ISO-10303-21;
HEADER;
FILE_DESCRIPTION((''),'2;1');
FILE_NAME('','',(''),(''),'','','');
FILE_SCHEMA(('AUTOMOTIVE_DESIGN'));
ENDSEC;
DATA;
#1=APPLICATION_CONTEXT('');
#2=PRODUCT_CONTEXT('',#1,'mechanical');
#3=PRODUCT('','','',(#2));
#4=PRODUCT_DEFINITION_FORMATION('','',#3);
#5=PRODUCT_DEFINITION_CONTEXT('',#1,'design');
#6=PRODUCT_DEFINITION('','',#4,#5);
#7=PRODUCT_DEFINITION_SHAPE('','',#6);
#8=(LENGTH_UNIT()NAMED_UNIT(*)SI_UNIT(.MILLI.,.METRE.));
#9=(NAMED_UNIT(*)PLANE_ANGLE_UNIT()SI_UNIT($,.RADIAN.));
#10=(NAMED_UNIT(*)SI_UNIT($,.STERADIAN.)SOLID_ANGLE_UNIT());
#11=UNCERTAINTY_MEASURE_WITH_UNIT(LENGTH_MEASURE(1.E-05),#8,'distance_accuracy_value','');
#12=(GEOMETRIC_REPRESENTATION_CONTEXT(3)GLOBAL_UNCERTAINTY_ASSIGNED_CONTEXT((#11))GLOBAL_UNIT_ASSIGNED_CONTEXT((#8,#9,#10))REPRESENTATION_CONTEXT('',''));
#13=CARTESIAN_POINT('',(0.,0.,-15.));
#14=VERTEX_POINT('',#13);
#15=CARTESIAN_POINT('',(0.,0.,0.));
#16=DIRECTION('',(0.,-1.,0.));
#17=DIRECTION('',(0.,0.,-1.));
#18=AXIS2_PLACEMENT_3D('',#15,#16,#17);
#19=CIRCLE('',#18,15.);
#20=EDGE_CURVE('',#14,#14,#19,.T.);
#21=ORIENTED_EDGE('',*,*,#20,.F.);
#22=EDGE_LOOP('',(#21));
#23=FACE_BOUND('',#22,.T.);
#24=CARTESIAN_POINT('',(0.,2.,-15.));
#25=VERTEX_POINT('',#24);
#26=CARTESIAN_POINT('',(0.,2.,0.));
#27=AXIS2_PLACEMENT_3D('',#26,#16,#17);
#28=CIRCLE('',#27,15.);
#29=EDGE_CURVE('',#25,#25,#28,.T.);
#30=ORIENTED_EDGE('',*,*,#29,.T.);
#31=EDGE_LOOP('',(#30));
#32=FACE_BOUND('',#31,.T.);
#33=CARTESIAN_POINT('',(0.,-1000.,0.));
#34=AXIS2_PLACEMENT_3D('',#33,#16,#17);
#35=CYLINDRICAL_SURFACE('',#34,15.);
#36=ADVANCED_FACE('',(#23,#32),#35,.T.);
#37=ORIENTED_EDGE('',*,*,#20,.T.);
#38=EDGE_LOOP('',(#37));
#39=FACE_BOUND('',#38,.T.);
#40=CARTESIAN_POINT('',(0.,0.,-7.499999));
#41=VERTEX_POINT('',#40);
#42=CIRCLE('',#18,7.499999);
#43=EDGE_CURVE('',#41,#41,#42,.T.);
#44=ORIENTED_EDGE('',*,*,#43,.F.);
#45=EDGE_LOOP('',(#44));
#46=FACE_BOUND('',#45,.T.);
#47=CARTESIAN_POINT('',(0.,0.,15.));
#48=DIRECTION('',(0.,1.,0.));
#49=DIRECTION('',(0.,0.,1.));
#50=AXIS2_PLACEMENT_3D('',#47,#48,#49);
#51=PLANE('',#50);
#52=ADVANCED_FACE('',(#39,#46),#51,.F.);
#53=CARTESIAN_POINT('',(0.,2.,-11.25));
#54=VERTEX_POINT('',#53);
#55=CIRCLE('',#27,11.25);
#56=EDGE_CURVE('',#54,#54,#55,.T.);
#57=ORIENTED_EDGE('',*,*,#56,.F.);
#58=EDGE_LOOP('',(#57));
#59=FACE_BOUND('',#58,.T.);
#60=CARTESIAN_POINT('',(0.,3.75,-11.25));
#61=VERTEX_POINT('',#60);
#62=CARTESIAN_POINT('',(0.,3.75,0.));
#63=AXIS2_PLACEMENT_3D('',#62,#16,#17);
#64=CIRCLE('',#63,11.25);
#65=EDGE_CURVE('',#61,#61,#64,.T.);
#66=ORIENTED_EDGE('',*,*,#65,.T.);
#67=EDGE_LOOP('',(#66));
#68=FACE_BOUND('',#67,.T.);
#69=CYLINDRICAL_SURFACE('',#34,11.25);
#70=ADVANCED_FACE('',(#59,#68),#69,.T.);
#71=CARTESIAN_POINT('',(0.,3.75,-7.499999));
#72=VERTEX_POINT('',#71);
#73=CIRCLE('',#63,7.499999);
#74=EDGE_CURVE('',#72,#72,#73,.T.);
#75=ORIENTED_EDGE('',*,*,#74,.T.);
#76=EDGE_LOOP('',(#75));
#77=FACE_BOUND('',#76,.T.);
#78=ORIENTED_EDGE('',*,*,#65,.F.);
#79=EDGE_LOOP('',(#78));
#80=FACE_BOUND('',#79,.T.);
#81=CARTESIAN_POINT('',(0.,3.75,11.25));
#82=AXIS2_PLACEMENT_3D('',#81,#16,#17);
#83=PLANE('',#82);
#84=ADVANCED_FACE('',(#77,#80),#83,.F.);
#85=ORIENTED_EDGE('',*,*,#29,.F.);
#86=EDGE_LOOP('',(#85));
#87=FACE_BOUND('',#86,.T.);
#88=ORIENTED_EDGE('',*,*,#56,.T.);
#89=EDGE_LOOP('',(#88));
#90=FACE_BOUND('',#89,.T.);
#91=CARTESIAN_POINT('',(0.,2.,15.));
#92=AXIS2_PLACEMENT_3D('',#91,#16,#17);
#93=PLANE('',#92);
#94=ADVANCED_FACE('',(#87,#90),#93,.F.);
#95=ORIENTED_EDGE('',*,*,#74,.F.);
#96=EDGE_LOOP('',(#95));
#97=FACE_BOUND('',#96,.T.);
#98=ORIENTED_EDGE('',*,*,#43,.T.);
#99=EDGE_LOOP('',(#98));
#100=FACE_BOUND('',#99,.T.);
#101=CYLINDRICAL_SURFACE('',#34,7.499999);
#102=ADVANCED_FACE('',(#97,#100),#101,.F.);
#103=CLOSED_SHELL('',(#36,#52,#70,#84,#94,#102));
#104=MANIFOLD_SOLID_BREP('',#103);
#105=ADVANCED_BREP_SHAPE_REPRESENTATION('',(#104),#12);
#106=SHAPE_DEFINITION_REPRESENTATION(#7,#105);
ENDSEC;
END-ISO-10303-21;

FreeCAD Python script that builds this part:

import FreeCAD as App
import Part
import Sketcher


def add_polygon(sketch, points):
    """Adds a closed chain of lines whose ends are joined by coincident constraints."""
    first, n = sketch.GeometryCount, len(points)
    for a, b in zip(points, points[1:] + points[:1]):
        sketch.addGeometry(Part.LineSegment(App.Vector(*a, 0), App.Vector(*b, 0)), False)
    for i in range(n):
        sketch.addConstraint(Sketcher.Constraint("Coincident", first + i, 2, first + (i + 1) % n, 1))

doc = App.newDocument("Part")
body = doc.addObject("PartDesign::Body", "Body")

sketch1 = body.newObject("Sketcher::SketchObject", "Sketch")
sketch1.AttachmentSupport = (doc.getObject("YZ_Plane"), [""])
sketch1.MapMode = "FlatFace"
add_polygon(sketch1, [(0, 15), (0, 7.5), (3.8, 7.5), (3.8, 11.2), (2, 11.2), (2, 15)])
sketch1.addConstraint([
    Sketcher.Constraint("Vertical", 0),
    Sketcher.Constraint("Horizontal", 1),
    Sketcher.Constraint("Vertical", 2),
    Sketcher.Constraint("Horizontal", 3),
    Sketcher.Constraint("Vertical", 4),
    Sketcher.Constraint("Horizontal", 5),
    Sketcher.Constraint("PointOnObject", 0, 2, -2),
    Sketcher.Constraint("Equal", 1, 2),
    Sketcher.Constraint("Equal", 2, 4),
    Sketcher.Constraint("DistanceX", 5, 2, 5, 1, 2.0),
    Sketcher.Constraint("DistanceY", 0, 2, 0, 1, 7.500001),
    Sketcher.Constraint("DistanceY", -1, 1, 4, 2, 15.0),
])
revolution = body.newObject("PartDesign::Revolution", "Revolution")
revolution.Profile = sketch1
revolution.ReferenceAxis = (sketch1, ["H_Axis"])
revolution.Angle = 360

doc.recompute()
